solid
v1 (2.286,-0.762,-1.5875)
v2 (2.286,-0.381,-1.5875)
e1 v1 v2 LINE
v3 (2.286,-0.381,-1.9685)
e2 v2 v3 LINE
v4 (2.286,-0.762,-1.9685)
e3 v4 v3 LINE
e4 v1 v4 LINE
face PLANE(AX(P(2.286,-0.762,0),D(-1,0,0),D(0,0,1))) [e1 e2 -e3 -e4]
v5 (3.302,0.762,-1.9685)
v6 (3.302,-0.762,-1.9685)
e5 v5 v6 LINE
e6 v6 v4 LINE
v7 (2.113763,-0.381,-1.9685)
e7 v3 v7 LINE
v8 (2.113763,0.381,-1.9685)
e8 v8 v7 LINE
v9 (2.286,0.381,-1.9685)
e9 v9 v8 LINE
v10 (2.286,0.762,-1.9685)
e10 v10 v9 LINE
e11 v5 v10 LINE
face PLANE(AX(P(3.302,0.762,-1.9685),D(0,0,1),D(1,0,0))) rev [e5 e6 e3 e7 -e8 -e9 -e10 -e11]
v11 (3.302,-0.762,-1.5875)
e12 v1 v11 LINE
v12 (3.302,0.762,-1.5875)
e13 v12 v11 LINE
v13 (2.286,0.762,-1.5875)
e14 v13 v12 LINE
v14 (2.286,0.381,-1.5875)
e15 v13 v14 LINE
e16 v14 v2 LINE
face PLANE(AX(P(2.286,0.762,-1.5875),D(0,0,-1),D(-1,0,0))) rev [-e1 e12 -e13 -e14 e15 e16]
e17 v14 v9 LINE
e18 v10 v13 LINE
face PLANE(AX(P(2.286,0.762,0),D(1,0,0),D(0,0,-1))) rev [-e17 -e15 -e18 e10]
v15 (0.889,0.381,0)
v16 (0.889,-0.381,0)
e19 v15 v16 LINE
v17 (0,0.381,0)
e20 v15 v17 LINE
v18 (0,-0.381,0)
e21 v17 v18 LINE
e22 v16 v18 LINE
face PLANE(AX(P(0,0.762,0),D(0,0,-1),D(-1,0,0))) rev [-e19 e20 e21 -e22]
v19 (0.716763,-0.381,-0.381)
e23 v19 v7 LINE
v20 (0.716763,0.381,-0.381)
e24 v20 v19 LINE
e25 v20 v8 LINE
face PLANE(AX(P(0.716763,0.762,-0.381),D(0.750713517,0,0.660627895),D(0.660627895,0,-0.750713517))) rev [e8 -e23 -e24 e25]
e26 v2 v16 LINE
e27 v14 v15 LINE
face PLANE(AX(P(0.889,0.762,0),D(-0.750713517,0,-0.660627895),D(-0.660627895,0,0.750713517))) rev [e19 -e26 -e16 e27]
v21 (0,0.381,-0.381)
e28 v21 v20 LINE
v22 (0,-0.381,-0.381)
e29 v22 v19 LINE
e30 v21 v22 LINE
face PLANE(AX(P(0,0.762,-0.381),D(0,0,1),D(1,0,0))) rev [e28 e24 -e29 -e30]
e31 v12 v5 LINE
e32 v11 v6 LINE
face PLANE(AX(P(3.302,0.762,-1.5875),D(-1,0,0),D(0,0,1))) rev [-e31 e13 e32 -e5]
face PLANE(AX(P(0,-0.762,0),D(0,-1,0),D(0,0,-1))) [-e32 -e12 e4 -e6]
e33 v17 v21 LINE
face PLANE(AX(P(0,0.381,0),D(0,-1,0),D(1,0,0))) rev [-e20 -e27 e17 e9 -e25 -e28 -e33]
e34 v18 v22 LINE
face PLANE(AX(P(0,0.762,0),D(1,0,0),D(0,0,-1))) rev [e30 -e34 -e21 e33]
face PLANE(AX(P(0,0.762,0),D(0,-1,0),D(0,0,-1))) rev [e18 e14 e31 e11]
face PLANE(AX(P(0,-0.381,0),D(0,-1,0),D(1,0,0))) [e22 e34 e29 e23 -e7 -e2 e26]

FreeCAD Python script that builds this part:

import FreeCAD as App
import Part
import Sketcher

V = App.Vector
Q = App.Units.Quantity


def add_polygon(sketch, points):
    """Adds a closed chain of lines whose ends are joined by coincident constraints."""
    first, n = sketch.GeometryCount, len(points)
    for a, b in zip(points, points[1:] + points[:1]):
        sketch.addGeometry(Part.LineSegment(App.Vector(*a, 0), App.Vector(*b, 0)), False)
    for i in range(n):
        sketch.addConstraint(Sketcher.Constraint("Coincident", first + i, 2, first + (i + 1) % n, 1))

doc = App.newDocument("Part")
params = doc.addObject("Spreadsheet::Sheet", "Params")
for row, (alias, value) in enumerate([
    ("sketch1_width", "0.04 in"),
    ("sketch1_width2", "0.035 in"),
    ("sketch1_height", "0.015 in"),
    ("pad1_length", "0.06 in"),
    ("sketch2_width", "0.09 in"),
    ("sketch2_height", "0.015 in"),
], start=1):
    params.set(f"A{row}", alias)
    params.set(f"B{row}", "=" + value)
    params.setAlias(f"B{row}", alias)

body = doc.addObject("PartDesign::Body", "Body")

# Sketch on XZ plane
sketch1 = body.newObject("Sketcher::SketchObject", "Sketch")
sketch1.AttachmentSupport = (doc.getObject("XZ_Plane"), [""])
sketch1.MapMode = "FlatFace"
add_polygon(sketch1, [(0, 0), (0.889, 0), (2.286, -1.5875), (3.302, -1.5875), (3.302, -1.9685), (2.113763, -1.9685), (0.716763, -0.381), (0, -0.381)])  # lines 0-7
sketch1.addConstraint(Sketcher.Constraint("Horizontal", 0))
sketch1.addConstraint(Sketcher.Constraint("Horizontal", 2))
sketch1.addConstraint(Sketcher.Constraint("Vertical", 3))
sketch1.addConstraint(Sketcher.Constraint("Horizontal", 4))
sketch1.addConstraint(Sketcher.Constraint("Horizontal", 6))
sketch1.addConstraint(Sketcher.Constraint("Vertical", 7))
sketch1.addConstraint(Sketcher.Constraint("Coincident", 7, 2, -1, 1))
sketch1.addConstraint(Sketcher.Constraint("Parallel", 1, 5))
sketch1.addConstraint(Sketcher.Constraint("Equal", 3, 7))
sketch1.addConstraint(Sketcher.Constraint("DistanceX", 2, 1, 2, 2, Q("0.04 in")))
sketch1.addConstraint(Sketcher.Constraint("DistanceX", 0, 1, 0, 2, Q("0.035 in")))
sketch1.addConstraint(Sketcher.Constraint("DistanceY", 3, 2, 3, 1, Q("0.015 in")))
sketch1.addConstraint(Sketcher.Constraint("DistanceX", -1, 1, 1, 2, Q("0.09 in")))
sketch1.addConstraint(Sketcher.Constraint("DistanceY", 1, 2, -1, 1, Q("0.0625 in")))
sketch1.addConstraint(Sketcher.Constraint("DistanceX", 4, 2, 4, 1, Q("1.188237 mm")))
sketch1.setExpression("Constraints[17]", "Params.sketch1_width")
sketch1.setExpression("Constraints[18]", "Params.sketch1_width2")
sketch1.setExpression("Constraints[19]", "Params.sketch1_height")
pad1 = body.newObject("PartDesign::Pad", "Pad")
pad1.Profile = sketch1
pad1.setExpression("Length", "Params.pad1_length")
pad1.Midplane = True

# Sketch on XY plane
sketch2 = body.newObject("Sketcher::SketchObject", "Sketch001")
sketch2.AttachmentSupport = (doc.getObject("XY_Plane"), [""])
sketch2.MapMode = "FlatFace"
sketch2.AttachmentOffset = App.Placement(V(0, 0, -0.0775 * 25.4), App.Rotation())
add_polygon(sketch2, [(2.286, 0.762), (2.286, 0.381), (0, 0.381), (0, 0.762)])  # lines 0-3
sketch2.addConstraint(Sketcher.Constraint("Vertical", 0))
sketch2.addConstraint(Sketcher.Constraint("Horizontal", 1))
sketch2.addConstraint(Sketcher.Constraint("Vertical", 2))
sketch2.addConstraint(Sketcher.Constraint("Horizontal", 3))
sketch2.addConstraint(Sketcher.Constraint("PointOnObject", 1, 2, -2))
sketch2.addConstraint(Sketcher.Constraint("DistanceX", 1, 2, 1, 1, Q("0.09 in")))
sketch2.addConstraint(Sketcher.Constraint("DistanceY", 0, 2, 0, 1, Q("0.015 in")))
sketch2.addConstraint(Sketcher.Constraint("DistanceY", -1, 1, 2, 2, Q("0.03 in")))
sketch2.setExpression("Constraints[9]", "Params.sketch2_width")
sketch2.setExpression("Constraints[10]", "Params.sketch2_height")
pocket1 = body.newObject("PartDesign::Pocket", "Pocket")
pocket1.Profile = sketch2
pocket1.Type = "ThroughAll"
pocket1.Reversed = True
doc.recompute()

mirrored = body.newObject("PartDesign::Mirrored", "Mirrored")
mirrored.Originals = [pocket1]
mirrored.MirrorPlane = (doc.getObject("XZ_Plane"), [""])
body.Tip = mirrored

doc.recompute()
